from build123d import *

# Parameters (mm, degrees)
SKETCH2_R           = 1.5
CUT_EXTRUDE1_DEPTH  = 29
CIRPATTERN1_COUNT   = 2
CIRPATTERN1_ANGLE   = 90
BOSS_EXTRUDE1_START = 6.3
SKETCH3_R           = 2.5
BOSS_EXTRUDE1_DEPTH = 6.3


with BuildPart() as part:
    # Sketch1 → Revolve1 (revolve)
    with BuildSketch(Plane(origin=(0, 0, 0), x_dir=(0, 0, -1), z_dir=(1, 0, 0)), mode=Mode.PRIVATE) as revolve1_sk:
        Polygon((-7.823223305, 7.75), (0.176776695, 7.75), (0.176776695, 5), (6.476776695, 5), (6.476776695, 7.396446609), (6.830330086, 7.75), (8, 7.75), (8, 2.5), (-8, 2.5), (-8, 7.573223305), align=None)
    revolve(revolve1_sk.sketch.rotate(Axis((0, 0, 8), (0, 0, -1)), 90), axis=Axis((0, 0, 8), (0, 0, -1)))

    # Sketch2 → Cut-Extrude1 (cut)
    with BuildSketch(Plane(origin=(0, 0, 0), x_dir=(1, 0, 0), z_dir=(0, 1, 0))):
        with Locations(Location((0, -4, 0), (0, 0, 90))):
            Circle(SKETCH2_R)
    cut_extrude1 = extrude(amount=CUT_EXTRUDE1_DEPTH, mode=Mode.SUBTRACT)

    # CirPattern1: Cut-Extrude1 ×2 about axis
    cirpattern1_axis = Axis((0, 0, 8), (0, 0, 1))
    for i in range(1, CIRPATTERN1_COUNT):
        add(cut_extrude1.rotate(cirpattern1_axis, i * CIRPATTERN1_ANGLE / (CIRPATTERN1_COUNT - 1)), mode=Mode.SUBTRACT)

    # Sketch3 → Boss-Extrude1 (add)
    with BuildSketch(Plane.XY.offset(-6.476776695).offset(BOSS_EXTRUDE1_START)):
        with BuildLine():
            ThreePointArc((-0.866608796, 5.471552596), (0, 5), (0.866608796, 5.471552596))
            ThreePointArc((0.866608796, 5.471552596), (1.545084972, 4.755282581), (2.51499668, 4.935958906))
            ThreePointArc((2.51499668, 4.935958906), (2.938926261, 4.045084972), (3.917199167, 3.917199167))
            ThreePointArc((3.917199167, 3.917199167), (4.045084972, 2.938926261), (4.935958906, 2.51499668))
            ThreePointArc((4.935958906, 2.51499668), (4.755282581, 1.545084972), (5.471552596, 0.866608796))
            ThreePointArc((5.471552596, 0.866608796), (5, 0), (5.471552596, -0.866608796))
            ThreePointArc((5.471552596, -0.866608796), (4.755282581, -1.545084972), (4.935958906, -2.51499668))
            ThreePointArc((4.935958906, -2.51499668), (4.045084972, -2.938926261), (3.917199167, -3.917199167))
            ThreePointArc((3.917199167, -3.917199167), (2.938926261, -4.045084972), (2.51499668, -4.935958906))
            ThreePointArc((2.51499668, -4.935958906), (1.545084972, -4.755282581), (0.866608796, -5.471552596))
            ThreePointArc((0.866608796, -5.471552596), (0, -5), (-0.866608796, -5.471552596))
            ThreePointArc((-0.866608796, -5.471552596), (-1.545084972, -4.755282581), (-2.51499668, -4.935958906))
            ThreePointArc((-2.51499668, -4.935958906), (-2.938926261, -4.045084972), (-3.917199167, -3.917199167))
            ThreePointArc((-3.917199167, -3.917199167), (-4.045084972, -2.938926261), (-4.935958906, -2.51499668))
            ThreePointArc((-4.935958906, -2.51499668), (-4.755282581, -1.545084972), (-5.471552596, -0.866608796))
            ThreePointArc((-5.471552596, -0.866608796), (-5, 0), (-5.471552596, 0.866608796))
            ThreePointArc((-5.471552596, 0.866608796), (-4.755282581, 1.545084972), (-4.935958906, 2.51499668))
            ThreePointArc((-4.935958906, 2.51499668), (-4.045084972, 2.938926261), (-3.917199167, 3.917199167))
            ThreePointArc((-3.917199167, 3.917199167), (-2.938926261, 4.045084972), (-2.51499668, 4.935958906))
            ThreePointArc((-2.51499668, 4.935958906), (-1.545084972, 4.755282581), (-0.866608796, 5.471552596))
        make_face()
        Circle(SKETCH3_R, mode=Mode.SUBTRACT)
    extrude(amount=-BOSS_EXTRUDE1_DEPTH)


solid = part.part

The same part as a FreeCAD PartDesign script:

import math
import FreeCAD as App
import Part
import Sketcher
from FreeCAD import Vector
Q = App.Units.Quantity

doc = App.newDocument("Part")
params = doc.addObject("Spreadsheet::Sheet", "Params")
for row, (alias, value) in enumerate([
    ("sketch1_height", "8 mm"),
    ("sketch1_height2", "16 mm"),
    ("sketch1_height3", "6.3 mm"),
    ("sketch1_length", "0.5 mm"),
    ("sketch1_width", "5.25 mm"),
    ("revolution_angle", "360 deg"),
    ("sketch2_diameter", "3 mm"),
    ("pocket1_length", "29 mm"),
    ("sketch3_diameter", "5 mm"),
    ("pad1_length", "6.3 mm"),
], start=1):
    params.set(f"A{row}", alias)
    params.set(f"B{row}", "=" + value)
    params.setAlias(f"B{row}", alias)

body = doc.addObject("PartDesign::Body", "Body")

# Sketch on YZ plane
sketch1 = body.newObject("Sketcher::SketchObject", "Sketch")
sketch1.AttachmentSupport = (doc.getObject("YZ_Plane"), [""])
sketch1.MapMode = "FlatFace"
sketch1.addGeometry([
    Part.LineSegment(Vector(7.75, -0.18, 0), Vector(7.75, 7.82, 0)),  # 0
    Part.LineSegment(Vector(7.75, 7.82, 0), Vector(7.57, 8, 0)),  # 1
    Part.LineSegment(Vector(7.57, 8, 0), Vector(2.5, 8, 0)),  # 2
    Part.LineSegment(Vector(2.5, 8, 0), Vector(2.5, -8, 0)),  # 3
    Part.LineSegment(Vector(2.5, -8, 0), Vector(7.75, -8, 0)),  # 4
    Part.LineSegment(Vector(7.75, -8, 0), Vector(7.75, -6.83, 0)),  # 5
    Part.LineSegment(Vector(7.75, -6.83, 0), Vector(7.4, -6.48, 0)),  # 6
    Part.LineSegment(Vector(7.4, -6.48, 0), Vector(5, -6.48, 0)),  # 7
    Part.LineSegment(Vector(5, -6.48, 0), Vector(5, -0.18, 0)),  # 8
    Part.LineSegment(Vector(5, -0.18, 0), Vector(7.75, -0.18, 0)),  # 9
], False)
sketch1.addConstraint([
    Sketcher.Constraint("Coincident", 0, 2, 1, 1),
    Sketcher.Constraint("Coincident", 1, 2, 2, 1),
    Sketcher.Constraint("Coincident", 2, 2, 3, 1),
    Sketcher.Constraint("Coincident", 3, 2, 4, 1),
    Sketcher.Constraint("Coincident", 4, 2, 5, 1),
    Sketcher.Constraint("Coincident", 5, 2, 6, 1),
    Sketcher.Constraint("Coincident", 6, 2, 7, 1),
    Sketcher.Constraint("Coincident", 7, 2, 8, 1),
    Sketcher.Constraint("Coincident", 8, 2, 9, 1),
    Sketcher.Constraint("Coincident", 9, 2, 0, 1),
    Sketcher.Constraint("Vertical", 0),
    Sketcher.Constraint("Horizontal", 2),
    Sketcher.Constraint("Vertical", 3),
    Sketcher.Constraint("Horizontal", 4),
    Sketcher.Constraint("Vertical", 5),
    Sketcher.Constraint("Horizontal", 7),
    Sketcher.Constraint("Vertical", 8),
    Sketcher.Constraint("Horizontal", 9),
    Sketcher.Constraint("Parallel", 1, 6),
    Sketcher.Constraint("Vertical", 0, 2, 4, 2),
    Sketcher.Constraint("DistanceY", 0, 1, 0, 2, 8.0),
    Sketcher.Constraint("DistanceY", 3, 2, 3, 1, 16.0),
    Sketcher.Constraint("Angle", 1, Q("135 deg")),
    Sketcher.Constraint("DistanceY", 8, 1, 8, 2, 6.3),
    Sketcher.Constraint("DistanceY", -1, 1, 1, 2, 8.0),
    Sketcher.Constraint("DistanceX", -1, 1, 7, 2, 5.0),
    Sketcher.Constraint("Distance", 6, 0.5),
    Sketcher.Constraint("DistanceX", 4, 1, 4, 2, 5.25),
    Sketcher.Constraint("DistanceX", 9, 1, 9, 2, 2.75),
    Sketcher.Constraint("Distance", 1, 0.25),
])
sketch1.setExpression("Constraints[20]", "Params.sketch1_height")
sketch1.setExpression("Constraints[21]", "Params.sketch1_height2")
sketch1.setExpression("Constraints[23]", "Params.sketch1_height3")
sketch1.setExpression("Constraints[26]", "Params.sketch1_length")
sketch1.setExpression("Constraints[27]", "Params.sketch1_width")
revolution = body.newObject("PartDesign::Revolution", "Revolution")
revolution.Profile = sketch1
revolution.ReferenceAxis = (sketch1, ["V_Axis"])
revolution.setExpression("Angle", "Params.revolution_angle")

# Sketch on XZ plane
sketch2 = body.newObject("Sketcher::SketchObject", "Sketch001")
sketch2.AttachmentSupport = (doc.getObject("XZ_Plane"), [""])
sketch2.MapMode = "FlatFace"
sketch2.addGeometry(Part.Circle(Vector(0, 4, 0), Vector(0, 0, 1), 1.5), False)
sketch2.addConstraint([
    Sketcher.Constraint("PointOnObject", 0, 3, -2),
    Sketcher.Constraint("Diameter", 0, 3.0),
    Sketcher.Constraint("DistanceY", -1, 1, 0, 3, 4.0),
])
sketch2.setExpression("Constraints[1]", "Params.sketch2_diameter")
pocket1 = body.newObject("PartDesign::Pocket", "Pocket")
pocket1.Profile = sketch2
pocket1.setExpression("Length", "Params.pocket1_length")
doc.recompute()

polarpattern = body.newObject("PartDesign::PolarPattern", "PolarPattern")
polarpattern.Originals = [pocket1]
polarpattern.Axis = (doc.getObject("Z_Axis"), [""])
polarpattern.Angle = 90
polarpattern.Occurrences = 2
body.Tip = polarpattern

# Sketch on XY plane
sketch3 = body.newObject("Sketcher::SketchObject", "Sketch002")
sketch3.AttachmentSupport = (doc.getObject("XY_Plane"), [""])
sketch3.MapMode = "FlatFace"
sketch3.AttachmentOffset = App.Placement(Vector(0, 0, -0.176777), App.Rotation())
sketch3.addGeometry([
    Part.ArcOfCircle(Part.Circle(Vector(0, 6, 0), Vector(0, 0, 1), 1), math.radians(-147), math.radians(-33)),  # 0
    Part.ArcOfCircle(Part.Circle(Vector(-1.9, 5.7, 0), Vector(0, 0, 1), 1), math.radians(-129), math.radians(-15)),  # 1
    Part.ArcOfCircle(Part.Circle(Vector(-3.5, 4.9, 0), Vector(0, 0, 1), 1), math.radians(-111), math.radians(3)),  # 2
    Part.ArcOfCircle(Part.Circle(Vector(-4.9, 3.5, 0), Vector(0, 0, 1), 1), math.radians(-93), math.radians(21)),  # 3
    Part.ArcOfCircle(Part.Circle(Vector(-5.7, 1.9, 0), Vector(0, 0, 1), 1), math.radians(-75), math.radians(39)),  # 4
    Part.ArcOfCircle(Part.Circle(Vector(-6, 0, 0), Vector(0, 0, 1), 1), math.radians(-57), math.radians(57)),  # 5
    Part.ArcOfCircle(Part.Circle(Vector(-5.7, -1.9, 0), Vector(0, 0, 1), 1), math.radians(-39), math.radians(75)),  # 6
    Part.ArcOfCircle(Part.Circle(Vector(-4.9, -3.5, 0), Vector(0, 0, 1), 1), math.radians(-21), math.radians(93)),  # 7
    Part.ArcOfCircle(Part.Circle(Vector(-3.5, -4.9, 0), Vector(0, 0, 1), 1), math.radians(-3), math.radians(111)),  # 8
    Part.ArcOfCircle(Part.Circle(Vector(-1.9, -5.7, 0), Vector(0, 0, 1), 1), math.radians(15), math.radians(129)),  # 9
    Part.ArcOfCircle(Part.Circle(Vector(0, -6, 0), Vector(0, 0, 1), 1), math.radians(33), math.radians(147)),  # 10
    Part.ArcOfCircle(Part.Circle(Vector(1.9, -5.7, 0), Vector(0, 0, 1), 1), math.radians(51), math.radians(165)),  # 11
    Part.ArcOfCircle(Part.Circle(Vector(3.5, -4.9, 0), Vector(0, 0, 1), 1), math.radians(69), math.radians(183)),  # 12
    Part.ArcOfCircle(Part.Circle(Vector(4.9, -3.5, 0), Vector(0, 0, 1), 1), math.radians(87), math.radians(201)),  # 13
    Part.ArcOfCircle(Part.Circle(Vector(5.7, -1.9, 0), Vector(0, 0, 1), 1), math.radians(105), math.radians(219)),  # 14
    Part.ArcOfCircle(Part.Circle(Vector(6, 0, 0), Vector(0, 0, 1), 1), math.radians(123), math.radians(237)),  # 15
    Part.ArcOfCircle(Part.Circle(Vector(5.7, 1.9, 0), Vector(0, 0, 1), 1), math.radians(141), math.radians(255)),  # 16
    Part.ArcOfCircle(Part.Circle(Vector(4.9, 3.5, 0), Vector(0, 0, 1), 1), math.radians(159), math.radians(273)),  # 17
    Part.ArcOfCircle(Part.Circle(Vector(3.5, 4.9, 0), Vector(0, 0, 1), 1), math.radians(177), math.radians(291)),  # 18
    Part.ArcOfCircle(Part.Circle(Vector(1.9, 5.7, 0), Vector(0, 0, 1), 1), math.radians(-165), math.radians(-51)),  # 19
    Part.Circle(Vector(0, 0, 0), Vector(0, 0, 1), 2.5),  # 20
], False)
sketch3.addConstraint([
    Sketcher.Constraint("Coincident", 0, 1, 1, 2),
    Sketcher.Constraint("Coincident", 1, 1, 2, 2),
    Sketcher.Constraint("Coincident", 2, 1, 3, 2),
    Sketcher.Constraint("Coincident", 3, 1, 4, 2),
    Sketcher.Constraint("Coincident", 4, 1, 5, 2),
    Sketcher.Constraint("Coincident", 5, 1, 6, 2),
    Sketcher.Constraint("Coincident", 6, 1, 7, 2),
    Sketcher.Constraint("Coincident", 7, 1, 8, 2),
    Sketcher.Constraint("Coincident", 8, 1, 9, 2),
    Sketcher.Constraint("Coincident", 9, 1, 10, 2),
    Sketcher.Constraint("Coincident", 10, 1, 11, 2),
    Sketcher.Constraint("Coincident", 11, 1, 12, 2),
    Sketcher.Constraint("Coincident", 12, 1, 13, 2),
    Sketcher.Constraint("Coincident", 13, 1, 14, 2),
    Sketcher.Constraint("Coincident", 14, 1, 15, 2),
    Sketcher.Constraint("Coincident", 15, 1, 16, 2),
    Sketcher.Constraint("Coincident", 16, 1, 17, 2),
    Sketcher.Constraint("Coincident", 17, 1, 18, 2),
    Sketcher.Constraint("Coincident", 18, 1, 19, 2),
    Sketcher.Constraint("Coincident", 19, 1, 0, 2),
    Sketcher.Constraint("Coincident", 20, 3, -1, 1),
    Sketcher.Constraint("Equal", 0, 1),
    Sketcher.Constraint("Equal", 1, 2),
    Sketcher.Constraint("Equal", 2, 3),
    Sketcher.Constraint("Equal", 3, 4),
    Sketcher.Constraint("Equal", 4, 5),
    Sketcher.Constraint("Equal", 5, 6),
    Sketcher.Constraint("Equal", 6, 7),
    Sketcher.Constraint("Equal", 7, 8),
    Sketcher.Constraint("Equal", 8, 9),
    Sketcher.Constraint("Equal", 9, 10),
    Sketcher.Constraint("Equal", 10, 11),
    Sketcher.Constraint("Equal", 11, 12),
    Sketcher.Constraint("Equal", 12, 13),
    Sketcher.Constraint("Equal", 13, 14),
    Sketcher.Constraint("Equal", 14, 15),
    Sketcher.Constraint("Equal", 15, 16),
    Sketcher.Constraint("Equal", 16, 17),
    Sketcher.Constraint("Equal", 17, 18),
    Sketcher.Constraint("Equal", 18, 19),
    Sketcher.Constraint("Symmetric", 0, 3, 10, 3, -1, 1),
    Sketcher.Constraint("Symmetric", 1, 3, 11, 3, -1, 1),
    Sketcher.Constraint("Symmetric", 2, 3, 12, 3, -1, 1),
    Sketcher.Constraint("Symmetric", 3, 3, 13, 3, -1, 1),
    Sketcher.Constraint("Symmetric", 4, 3, 14, 3, -1, 1),
    Sketcher.Constraint("Symmetric", 5, 3, 15, 3, -1, 1),
    Sketcher.Constraint("Symmetric", 6, 3, 16, 3, -1, 1),
    Sketcher.Constraint("Symmetric", 7, 3, 17, 3, -1, 1),
    Sketcher.Constraint("Symmetric", 8, 3, 18, 3, -1, 1),
    Sketcher.Constraint("Symmetric", 9, 3, 19, 3, -1, 1),
    Sketcher.Constraint("Symmetric", 9, 3, 11, 3, -2),
    Sketcher.Constraint("Symmetric", 8, 3, 12, 3, -2),
    Sketcher.Constraint("Symmetric", 7, 3, 13, 3, -2),
    Sketcher.Constraint("Symmetric", 6, 3, 14, 3, -2),
    Sketcher.Constraint("PointOnObject", 0, 3, -2),
    Sketcher.Constraint("PointOnObject", 5, 3, -1),
    Sketcher.Constraint("Diameter", 20, 5.0),
    Sketcher.Constraint("Radius", 0, 1.032093),
    Sketcher.Constraint("DistanceX", 2, 1, -1, 1, 3.917199),
    Sketcher.Constraint("DistanceY", -1, 1, 2, 1, 3.917199),
    Sketcher.Constraint("DistanceX", 1, 3, -1, 1, 1.864019),
    Sketcher.Constraint("DistanceY", -1, 1, 1, 3, 5.736862),
    Sketcher.Constraint("DistanceX", 4, 3, -1, 1, 5.736862),
    Sketcher.Constraint("DistanceY", -1, 1, 4, 3, 1.864019),
    Sketcher.Constraint("DistanceX", 0, 1, -1, 1, 0.866609),
    Sketcher.Constraint("DistanceY", -1, 1, 1, 1, 4.935959),
    Sketcher.Constraint("DistanceX", 3, 1, -1, 1, 4.935959),
    Sketcher.Constraint("DistanceY", -1, 1, 4, 1, 0.866609),
])
sketch3.setExpression("Constraints[56]", "Params.sketch3_diameter")
pad1 = body.newObject("PartDesign::Pad", "Pad")
pad1.Profile = sketch3
pad1.setExpression("Length", "Params.pad1_length")
pad1.Reversed = True

doc.recompute()
